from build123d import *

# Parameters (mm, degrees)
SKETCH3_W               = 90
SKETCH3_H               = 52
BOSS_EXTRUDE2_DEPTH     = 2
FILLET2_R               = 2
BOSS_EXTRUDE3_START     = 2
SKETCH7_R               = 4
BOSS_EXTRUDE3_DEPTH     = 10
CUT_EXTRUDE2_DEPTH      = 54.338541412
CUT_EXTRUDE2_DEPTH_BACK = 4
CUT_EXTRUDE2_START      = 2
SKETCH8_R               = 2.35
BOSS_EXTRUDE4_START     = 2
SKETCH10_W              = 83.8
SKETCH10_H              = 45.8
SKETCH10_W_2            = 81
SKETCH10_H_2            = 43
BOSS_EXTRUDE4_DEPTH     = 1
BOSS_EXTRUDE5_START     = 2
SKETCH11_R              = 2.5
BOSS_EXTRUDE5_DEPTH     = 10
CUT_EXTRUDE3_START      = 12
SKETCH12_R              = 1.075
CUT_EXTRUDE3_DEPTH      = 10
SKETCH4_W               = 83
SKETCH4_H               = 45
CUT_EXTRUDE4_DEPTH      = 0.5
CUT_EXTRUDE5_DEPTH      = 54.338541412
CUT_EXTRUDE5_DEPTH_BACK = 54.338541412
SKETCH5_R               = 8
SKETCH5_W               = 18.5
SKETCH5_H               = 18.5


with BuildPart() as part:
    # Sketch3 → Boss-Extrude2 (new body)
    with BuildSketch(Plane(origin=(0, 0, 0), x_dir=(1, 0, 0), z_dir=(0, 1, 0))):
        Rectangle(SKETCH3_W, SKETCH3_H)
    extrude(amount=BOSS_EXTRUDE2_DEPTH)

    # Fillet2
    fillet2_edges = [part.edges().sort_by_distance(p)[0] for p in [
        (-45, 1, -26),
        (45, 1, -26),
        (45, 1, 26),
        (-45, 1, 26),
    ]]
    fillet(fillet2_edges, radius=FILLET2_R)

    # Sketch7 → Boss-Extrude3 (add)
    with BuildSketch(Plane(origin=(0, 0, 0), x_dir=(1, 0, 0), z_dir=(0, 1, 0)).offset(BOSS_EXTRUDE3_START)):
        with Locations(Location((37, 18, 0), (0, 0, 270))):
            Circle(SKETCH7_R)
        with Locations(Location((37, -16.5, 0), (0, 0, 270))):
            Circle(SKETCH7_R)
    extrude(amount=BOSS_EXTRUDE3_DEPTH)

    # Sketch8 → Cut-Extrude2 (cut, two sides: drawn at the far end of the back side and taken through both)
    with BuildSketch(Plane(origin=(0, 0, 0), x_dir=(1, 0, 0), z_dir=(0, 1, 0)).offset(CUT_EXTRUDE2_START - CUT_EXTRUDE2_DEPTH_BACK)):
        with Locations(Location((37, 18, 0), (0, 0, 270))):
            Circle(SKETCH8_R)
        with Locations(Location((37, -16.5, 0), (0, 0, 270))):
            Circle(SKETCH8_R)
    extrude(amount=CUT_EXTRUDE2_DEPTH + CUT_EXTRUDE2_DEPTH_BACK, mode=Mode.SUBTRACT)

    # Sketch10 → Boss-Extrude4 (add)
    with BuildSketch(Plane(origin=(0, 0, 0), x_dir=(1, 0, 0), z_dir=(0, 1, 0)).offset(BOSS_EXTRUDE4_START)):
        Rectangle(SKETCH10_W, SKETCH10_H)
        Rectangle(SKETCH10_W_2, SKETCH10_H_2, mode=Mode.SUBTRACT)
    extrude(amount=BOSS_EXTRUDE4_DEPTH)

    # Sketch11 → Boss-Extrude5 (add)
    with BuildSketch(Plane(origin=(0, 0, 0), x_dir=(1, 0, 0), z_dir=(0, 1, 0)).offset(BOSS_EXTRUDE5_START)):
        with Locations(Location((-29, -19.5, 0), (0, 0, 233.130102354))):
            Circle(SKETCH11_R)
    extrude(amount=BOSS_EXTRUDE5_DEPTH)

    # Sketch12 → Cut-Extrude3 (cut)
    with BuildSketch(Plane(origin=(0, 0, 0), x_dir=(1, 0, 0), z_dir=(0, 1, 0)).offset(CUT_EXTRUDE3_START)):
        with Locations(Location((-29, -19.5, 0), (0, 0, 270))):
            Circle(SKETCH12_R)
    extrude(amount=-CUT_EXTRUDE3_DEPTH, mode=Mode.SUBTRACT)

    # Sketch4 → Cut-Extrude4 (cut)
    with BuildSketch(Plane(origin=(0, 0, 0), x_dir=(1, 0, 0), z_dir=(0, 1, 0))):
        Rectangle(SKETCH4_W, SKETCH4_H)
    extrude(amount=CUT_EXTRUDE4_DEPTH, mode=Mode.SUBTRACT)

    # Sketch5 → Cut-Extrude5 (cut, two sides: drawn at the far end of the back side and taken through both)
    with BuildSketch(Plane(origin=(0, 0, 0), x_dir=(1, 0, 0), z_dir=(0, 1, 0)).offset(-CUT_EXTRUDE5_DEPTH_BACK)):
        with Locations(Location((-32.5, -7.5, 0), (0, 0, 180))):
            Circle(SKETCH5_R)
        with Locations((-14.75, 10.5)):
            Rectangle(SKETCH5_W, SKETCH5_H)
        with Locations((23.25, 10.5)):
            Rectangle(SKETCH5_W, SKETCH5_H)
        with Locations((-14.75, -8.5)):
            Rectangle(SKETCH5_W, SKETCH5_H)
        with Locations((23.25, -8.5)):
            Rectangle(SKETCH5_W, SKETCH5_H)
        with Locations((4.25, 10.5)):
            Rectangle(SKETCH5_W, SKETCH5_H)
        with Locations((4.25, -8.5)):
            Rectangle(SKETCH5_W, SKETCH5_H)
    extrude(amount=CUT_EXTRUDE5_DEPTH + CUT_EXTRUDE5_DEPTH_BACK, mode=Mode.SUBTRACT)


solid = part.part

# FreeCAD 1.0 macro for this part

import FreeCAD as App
import Part
import Sketcher
from FreeCAD import Vector
Q = App.Units.Quantity


def edges_at(feature, points):
    """Names of the edges that pass closest to the given points."""
    edges = feature.Shape.Edges
    near = lambda p: min(range(len(edges)), key=lambda i: edges[i].distToShape(Part.Vertex(*p))[0])
    return sorted({f"Edge{near(p) + 1}" for p in points})


def add_polygon(sketch, points):
    """Adds a closed chain of lines whose ends are joined by coincident constraints."""
    first, n = sketch.GeometryCount, len(points)
    for a, b in zip(points, points[1:] + points[:1]):
        sketch.addGeometry(Part.LineSegment(App.Vector(*a, 0), App.Vector(*b, 0)), False)
    for i in range(n):
        sketch.addConstraint(Sketcher.Constraint("Coincident", first + i, 2, first + (i + 1) % n, 1))

doc = App.newDocument("Part")
body = doc.addObject("PartDesign::Body", "Body")

sketch1 = body.newObject("Sketcher::SketchObject", "Sketch")
sketch1.AttachmentSupport = (doc.getObject("XZ_Plane"), [""])
sketch1.MapMode = "FlatFace"
add_polygon(sketch1, [(-45, -26), (-45, 26), (45, 26), (45, -26)])
sketch1.addConstraint([
    Sketcher.Constraint("Vertical", 0),
    Sketcher.Constraint("Horizontal", 1),
    Sketcher.Constraint("Vertical", 2),
    Sketcher.Constraint("Horizontal", 3),
    Sketcher.Constraint("Symmetric", 0, 2, 2, 2, -1, 1),
    Sketcher.Constraint("DistanceX", 1, 1, 1, 2, Q("90 mm")),
    Sketcher.Constraint("DistanceY", 0, 1, 0, 2, Q("52 mm")),
])
pad1 = body.newObject("PartDesign::Pad", "Pad")
pad1.Profile = sketch1
pad1.Length = 2
pad1.Reversed = True
doc.recompute()

fillet = body.newObject("PartDesign::Fillet", "Fillet")
fillet.Base = (pad1, edges_at(pad1, [
    (-45, 1, -26),
    (45, 1, -26),
    (45, 1, 26),
    (-45, 1, 26),
]))
fillet.Radius = 2

sketch2 = body.newObject("Sketcher::SketchObject", "Sketch001")
sketch2.AttachmentSupport = (doc.getObject("XZ_Plane"), [""])
sketch2.MapMode = "FlatFace"
sketch2.AttachmentOffset = App.Placement(Vector(0, 0, -2), App.Rotation())
sketch2.addGeometry([
    Part.Circle(Vector(37, -18, 0), Vector(0, 0, 1), 4),
    Part.Circle(Vector(37, 16.5, 0), Vector(0, 0, 1), 4),
], False)
sketch2.addConstraint([
    Sketcher.Constraint("Equal", 0, 1),
    Sketcher.Constraint("Vertical", 0, 3, 1, 3),
    Sketcher.Constraint("Diameter", 0, Q("8 mm")),
    Sketcher.Constraint("DistanceX", -1, 1, 0, 3, Q("37 mm")),
    Sketcher.Constraint("DistanceY", 0, 3, -1, 1, Q("18 mm")),
    Sketcher.Constraint("DistanceY", -1, 1, 1, 3, Q("16.5 mm")),
])
pad2 = body.newObject("PartDesign::Pad", "Pad001")
pad2.Profile = sketch2
pad2.Length = 10
pad2.Reversed = True

sketch3 = body.newObject("Sketcher::SketchObject", "Sketch002")
sketch3.AttachmentSupport = (doc.getObject("XZ_Plane"), [""])
sketch3.MapMode = "FlatFace"
sketch3.AttachmentOffset = App.Placement(Vector(0, 0, -2), App.Rotation())
sketch3.addGeometry([
    Part.Circle(Vector(37, -18, 0), Vector(0, 0, 1), 2.35),
    Part.Circle(Vector(37, 16.5, 0), Vector(0, 0, 1), 2.35),
], False)
sketch3.addConstraint([
    Sketcher.Constraint("Equal", 0, 1),
    Sketcher.Constraint("Vertical", 0, 3, 1, 3),
    Sketcher.Constraint("Diameter", 0, Q("4.7 mm")),
    Sketcher.Constraint("DistanceX", -1, 1, 0, 3, Q("37 mm")),
    Sketcher.Constraint("DistanceY", 0, 3, -1, 1, Q("18 mm")),
    Sketcher.Constraint("DistanceY", -1, 1, 1, 3, Q("16.5 mm")),
])
pocket1 = body.newObject("PartDesign::Pocket", "Pocket")
pocket1.Profile = sketch3
pocket1.Type = "ThroughAll"
pocket1.Midplane = True

sketch4 = body.newObject("Sketcher::SketchObject", "Sketch003")
sketch4.AttachmentSupport = (doc.getObject("XZ_Plane"), [""])
sketch4.MapMode = "FlatFace"
sketch4.AttachmentOffset = App.Placement(Vector(0, 0, -2), App.Rotation())
add_polygon(sketch4, [(-41.9, -22.9), (-41.9, 22.9), (41.9, 22.9), (41.9, -22.9)])
add_polygon(sketch4, [(40.5, 21.5), (-40.5, 21.5), (-40.5, -21.5), (40.5, -21.5)])
sketch4.addConstraint([
    Sketcher.Constraint("Vertical", 0),
    Sketcher.Constraint("Horizontal", 1),
    Sketcher.Constraint("Vertical", 2),
    Sketcher.Constraint("Horizontal", 3),
    Sketcher.Constraint("Horizontal", 4),
    Sketcher.Constraint("Vertical", 5),
    Sketcher.Constraint("Horizontal", 6),
    Sketcher.Constraint("Vertical", 7),
    Sketcher.Constraint("Symmetric", 0, 2, 2, 2, -1, 1),
    Sketcher.Constraint("Symmetric", 4, 2, 6, 2, -1, 1),
    Sketcher.Constraint("DistanceX", 4, 2, 4, 1, Q("81 mm")),
    Sketcher.Constraint("DistanceY", 5, 2, 5, 1, Q("43 mm")),
    Sketcher.Constraint("DistanceX", 1, 1, 1, 2, Q("83.8 mm")),
    Sketcher.Constraint("DistanceY", 0, 1, 0, 2, Q("45.8 mm")),
])
pad3 = body.newObject("PartDesign::Pad", "Pad002")
pad3.Profile = sketch4
pad3.Length = 1
pad3.Reversed = True

sketch5 = body.newObject("Sketcher::SketchObject", "Sketch004")
sketch5.AttachmentSupport = (doc.getObject("XZ_Plane"), [""])
sketch5.MapMode = "FlatFace"
sketch5.AttachmentOffset = App.Placement(Vector(0, 0, -2), App.Rotation())
sketch5.addGeometry(Part.Circle(Vector(-29, 19.5, 0), Vector(0, 0, 1), 2.5), False)
sketch5.addConstraint([
    Sketcher.Constraint("Diameter", 0, Q("5 mm")),
    Sketcher.Constraint("DistanceX", 0, 3, -1, 1, Q("29 mm")),
    Sketcher.Constraint("DistanceY", -1, 1, 0, 3, Q("19.5 mm")),
])
pad4 = body.newObject("PartDesign::Pad", "Pad003")
pad4.Profile = sketch5
pad4.Length = 10
pad4.Reversed = True

sketch6 = body.newObject("Sketcher::SketchObject", "Sketch005")
sketch6.AttachmentSupport = (doc.getObject("XZ_Plane"), [""])
sketch6.MapMode = "FlatFace"
sketch6.AttachmentOffset = App.Placement(Vector(0, 0, -12), App.Rotation())
sketch6.addGeometry(Part.Circle(Vector(-29, 19.5, 0), Vector(0, 0, 1), 1.075), False)
sketch6.addConstraint([
    Sketcher.Constraint("Diameter", 0, Q("2.15 mm")),
    Sketcher.Constraint("DistanceX", 0, 3, -1, 1, Q("29 mm")),
    Sketcher.Constraint("DistanceY", -1, 1, 0, 3, Q("19.5 mm")),
])
pocket2 = body.newObject("PartDesign::Pocket", "Pocket001")
pocket2.Profile = sketch6
pocket2.Length = 10
pocket2.Reversed = True

sketch7 = body.newObject("Sketcher::SketchObject", "Sketch006")
sketch7.AttachmentSupport = (doc.getObject("XZ_Plane"), [""])
sketch7.MapMode = "FlatFace"
add_polygon(sketch7, [(-41.5, -22.5), (-41.5, 22.5), (41.5, 22.5), (41.5, -22.5)])
sketch7.addConstraint([
    Sketcher.Constraint("Vertical", 0),
    Sketcher.Constraint("Horizontal", 1),
    Sketcher.Constraint("Vertical", 2),
    Sketcher.Constraint("Horizontal", 3),
    Sketcher.Constraint("Symmetric", 0, 2, 2, 2, -1, 1),
    Sketcher.Constraint("DistanceX", 1, 1, 1, 2, Q("83 mm")),
    Sketcher.Constraint("DistanceY", 0, 1, 0, 2, Q("45 mm")),
])
pocket3 = body.newObject("PartDesign::Pocket", "Pocket002")
pocket3.Profile = sketch7
pocket3.Length = 0.5

sketch8 = body.newObject("Sketcher::SketchObject", "Sketch007")
sketch8.AttachmentSupport = (doc.getObject("XZ_Plane"), [""])
sketch8.MapMode = "FlatFace"
sketch8.addGeometry(Part.Circle(Vector(-32.5, 7.5, 0), Vector(0, 0, 1), 8), False)
add_polygon(sketch8, [(-24, -19.75), (-24, -1.25), (-5.5, -1.25), (-5.5, -19.75)])
add_polygon(sketch8, [(14, -19.75), (14, -1.25), (32.5, -1.25), (32.5, -19.75)])
add_polygon(sketch8, [(-24, -0.75), (-24, 17.75), (-5.5, 17.75), (-5.5, -0.75)])
add_polygon(sketch8, [(14, -0.75), (14, 17.75), (32.5, 17.75), (32.5, -0.75)])
add_polygon(sketch8, [(-5, -19.75), (-5, -1.25), (13.5, -1.25), (13.5, -19.75)])
add_polygon(sketch8, [(-5, -0.75), (-5, 17.75), (13.5, 17.75), (13.5, -0.75)])
sketch8.addConstraint([
    Sketcher.Constraint("Vertical", 1),
    Sketcher.Constraint("Horizontal", 2),
    Sketcher.Constraint("Vertical", 3),
    Sketcher.Constraint("Horizontal", 4),
    Sketcher.Constraint("Vertical", 5),
    Sketcher.Constraint("Horizontal", 6),
    Sketcher.Constraint("Vertical", 7),
    Sketcher.Constraint("Horizontal", 8),
    Sketcher.Constraint("Vertical", 9),
    Sketcher.Constraint("Horizontal", 10),
    Sketcher.Constraint("Vertical", 11),
    Sketcher.Constraint("Horizontal", 12),
    Sketcher.Constraint("Vertical", 13),
    Sketcher.Constraint("Horizontal", 14),
    Sketcher.Constraint("Vertical", 15),
    Sketcher.Constraint("Horizontal", 16),
    Sketcher.Constraint("Vertical", 17),
    Sketcher.Constraint("Horizontal", 18),
    Sketcher.Constraint("Vertical", 19),
    Sketcher.Constraint("Horizontal", 20),
    Sketcher.Constraint("Vertical", 21),
    Sketcher.Constraint("Horizontal", 22),
    Sketcher.Constraint("Vertical", 23),
    Sketcher.Constraint("Horizontal", 24),
    Sketcher.Constraint("Horizontal", 2, 2, 5, 2),
    Sketcher.Constraint("Horizontal", 4, 2, 7, 2),
    Sketcher.Constraint("Horizontal", 10, 2, 13, 2),
    Sketcher.Constraint("Horizontal", 12, 2, 15, 2),
    Sketcher.Constraint("Horizontal", 6, 2, 17, 2),
    Sketcher.Constraint("Horizontal", 8, 2, 19, 2),
    Sketcher.Constraint("Horizontal", 14, 2, 21, 2),
    Sketcher.Constraint("Horizontal", 16, 2, 23, 2),
    Sketcher.Constraint("Vertical", 4, 2, 9, 2),
    Sketcher.Constraint("Vertical", 3, 2, 10, 2),
    Sketcher.Constraint("Vertical", 8, 2, 13, 2),
    Sketcher.Constraint("Vertical", 7, 2, 14, 2),
    Sketcher.Constraint("Vertical", 20, 2, 21, 2),
    Sketcher.Constraint("Vertical", 19, 2, 22, 2),
    Sketcher.Constraint("Equal", 4, 6),
    Sketcher.Constraint("Equal", 16, 18),
    Sketcher.Constraint("Equal", 24, 1),
    Sketcher.Constraint("Equal", 7, 9),
    Sketcher.Constraint("Diameter", 0, Q("16 mm")),
    Sketcher.Constraint("DistanceX", 2, 1, 2, 2, Q("18.5 mm")),
    Sketcher.Constraint("DistanceX", 1, 2, -1, 1, Q("24 mm")),
    Sketcher.Constraint("DistanceX", -1, 1, 5, 2, Q("14 mm")),
    Sketcher.Constraint("DistanceX", 17, 2, -1, 1, Q("5 mm")),
    Sketcher.Constraint("DistanceX", 0, 3, 2, 2, Q("27 mm")),
    Sketcher.Constraint("DistanceY", 1, 2, 9, 2, Q("19 mm")),
    Sketcher.Constraint("DistanceY", -1, 1, 0, 3, Q("7.5 mm")),
    Sketcher.Constraint("DistanceY", 1, 2, -1, 1, Q("1.25 mm")),
])
pocket4 = body.newObject("PartDesign::Pocket", "Pocket003")
pocket4.Profile = sketch8
pocket4.Type = "ThroughAll"
pocket4.Midplane = True

doc.recompute()
